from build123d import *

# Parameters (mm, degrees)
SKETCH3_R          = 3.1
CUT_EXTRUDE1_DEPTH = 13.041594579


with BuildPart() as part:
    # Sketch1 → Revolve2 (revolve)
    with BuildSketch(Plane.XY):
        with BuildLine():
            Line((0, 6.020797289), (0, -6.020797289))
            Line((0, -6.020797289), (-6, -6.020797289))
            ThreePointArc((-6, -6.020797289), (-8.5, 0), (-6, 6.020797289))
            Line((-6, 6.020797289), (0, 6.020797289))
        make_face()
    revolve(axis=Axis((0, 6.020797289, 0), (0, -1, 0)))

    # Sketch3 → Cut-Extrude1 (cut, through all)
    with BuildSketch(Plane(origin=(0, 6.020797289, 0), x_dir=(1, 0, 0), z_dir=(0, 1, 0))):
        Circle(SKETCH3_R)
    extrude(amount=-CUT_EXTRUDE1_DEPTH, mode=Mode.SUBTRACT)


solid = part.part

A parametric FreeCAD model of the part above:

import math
import FreeCAD as App
import Part
import Sketcher

V = App.Vector

doc = App.newDocument("Part")
body = doc.addObject("PartDesign::Body", "Body")

sketch1 = body.newObject("Sketcher::SketchObject", "Sketch")
sketch1.AttachmentSupport = (doc.getObject("XY_Plane"), [""])
sketch1.MapMode = "FlatFace"
sketch1.addGeometry([
    Part.LineSegment(V(0, -6, 0), V(0, 6, 0)),
    Part.LineSegment(V(0, 6, 0), V(-6, 6, 0)),
    Part.ArcOfCircle(Part.Circle(V(0, 0, 0), V(0, 0, 1), 8), math.radians(135), math.radians(225)),
    Part.LineSegment(V(-6, -6, 0), V(0, -6, 0)),
], False)
sketch1.addConstraint([
    Sketcher.Constraint("Coincident", 0, 2, 1, 1),
    Sketcher.Constraint("Coincident", 1, 2, 2, 1),
    Sketcher.Constraint("Coincident", 2, 2, 3, 1),
    Sketcher.Constraint("Coincident", 3, 2, 0, 1),
    Sketcher.Constraint("Vertical", 0),
    Sketcher.Constraint("Horizontal", 1),
    Sketcher.Constraint("Horizontal", 3),
    Sketcher.Constraint("Coincident", 2, 3, -1, 1),
    Sketcher.Constraint("Symmetric", 0, 2, 3, 2, -1, 1),
    Sketcher.Constraint("Radius", 2, 8.5),
    Sketcher.Constraint("DistanceX", 1, 2, 1, 1, 6.0),
])
revolution = body.newObject("PartDesign::Revolution", "Revolution")
revolution.Profile = sketch1
revolution.ReferenceAxis = (sketch1, ["V_Axis"])
revolution.Angle = 360

sketch2 = body.newObject("Sketcher::SketchObject", "Sketch001")
sketch2.AttachmentSupport = (doc.getObject("XZ_Plane"), [""])
sketch2.MapMode = "FlatFace"
sketch2.AttachmentOffset = App.Placement(V(0, 0, -6.020797), App.Rotation())
sketch2.addGeometry(Part.Circle(V(0, 0, 0), V(0, 0, 1), 3.1), False)
sketch2.addConstraint([
    Sketcher.Constraint("Coincident", 0, 3, -1, 1),
    Sketcher.Constraint("Diameter", 0, 6.2),
])
pocket1 = body.newObject("PartDesign::Pocket", "Pocket")
pocket1.Profile = sketch2
pocket1.Type = "ThroughAll"
pocket1.Reversed = True

doc.recompute()
